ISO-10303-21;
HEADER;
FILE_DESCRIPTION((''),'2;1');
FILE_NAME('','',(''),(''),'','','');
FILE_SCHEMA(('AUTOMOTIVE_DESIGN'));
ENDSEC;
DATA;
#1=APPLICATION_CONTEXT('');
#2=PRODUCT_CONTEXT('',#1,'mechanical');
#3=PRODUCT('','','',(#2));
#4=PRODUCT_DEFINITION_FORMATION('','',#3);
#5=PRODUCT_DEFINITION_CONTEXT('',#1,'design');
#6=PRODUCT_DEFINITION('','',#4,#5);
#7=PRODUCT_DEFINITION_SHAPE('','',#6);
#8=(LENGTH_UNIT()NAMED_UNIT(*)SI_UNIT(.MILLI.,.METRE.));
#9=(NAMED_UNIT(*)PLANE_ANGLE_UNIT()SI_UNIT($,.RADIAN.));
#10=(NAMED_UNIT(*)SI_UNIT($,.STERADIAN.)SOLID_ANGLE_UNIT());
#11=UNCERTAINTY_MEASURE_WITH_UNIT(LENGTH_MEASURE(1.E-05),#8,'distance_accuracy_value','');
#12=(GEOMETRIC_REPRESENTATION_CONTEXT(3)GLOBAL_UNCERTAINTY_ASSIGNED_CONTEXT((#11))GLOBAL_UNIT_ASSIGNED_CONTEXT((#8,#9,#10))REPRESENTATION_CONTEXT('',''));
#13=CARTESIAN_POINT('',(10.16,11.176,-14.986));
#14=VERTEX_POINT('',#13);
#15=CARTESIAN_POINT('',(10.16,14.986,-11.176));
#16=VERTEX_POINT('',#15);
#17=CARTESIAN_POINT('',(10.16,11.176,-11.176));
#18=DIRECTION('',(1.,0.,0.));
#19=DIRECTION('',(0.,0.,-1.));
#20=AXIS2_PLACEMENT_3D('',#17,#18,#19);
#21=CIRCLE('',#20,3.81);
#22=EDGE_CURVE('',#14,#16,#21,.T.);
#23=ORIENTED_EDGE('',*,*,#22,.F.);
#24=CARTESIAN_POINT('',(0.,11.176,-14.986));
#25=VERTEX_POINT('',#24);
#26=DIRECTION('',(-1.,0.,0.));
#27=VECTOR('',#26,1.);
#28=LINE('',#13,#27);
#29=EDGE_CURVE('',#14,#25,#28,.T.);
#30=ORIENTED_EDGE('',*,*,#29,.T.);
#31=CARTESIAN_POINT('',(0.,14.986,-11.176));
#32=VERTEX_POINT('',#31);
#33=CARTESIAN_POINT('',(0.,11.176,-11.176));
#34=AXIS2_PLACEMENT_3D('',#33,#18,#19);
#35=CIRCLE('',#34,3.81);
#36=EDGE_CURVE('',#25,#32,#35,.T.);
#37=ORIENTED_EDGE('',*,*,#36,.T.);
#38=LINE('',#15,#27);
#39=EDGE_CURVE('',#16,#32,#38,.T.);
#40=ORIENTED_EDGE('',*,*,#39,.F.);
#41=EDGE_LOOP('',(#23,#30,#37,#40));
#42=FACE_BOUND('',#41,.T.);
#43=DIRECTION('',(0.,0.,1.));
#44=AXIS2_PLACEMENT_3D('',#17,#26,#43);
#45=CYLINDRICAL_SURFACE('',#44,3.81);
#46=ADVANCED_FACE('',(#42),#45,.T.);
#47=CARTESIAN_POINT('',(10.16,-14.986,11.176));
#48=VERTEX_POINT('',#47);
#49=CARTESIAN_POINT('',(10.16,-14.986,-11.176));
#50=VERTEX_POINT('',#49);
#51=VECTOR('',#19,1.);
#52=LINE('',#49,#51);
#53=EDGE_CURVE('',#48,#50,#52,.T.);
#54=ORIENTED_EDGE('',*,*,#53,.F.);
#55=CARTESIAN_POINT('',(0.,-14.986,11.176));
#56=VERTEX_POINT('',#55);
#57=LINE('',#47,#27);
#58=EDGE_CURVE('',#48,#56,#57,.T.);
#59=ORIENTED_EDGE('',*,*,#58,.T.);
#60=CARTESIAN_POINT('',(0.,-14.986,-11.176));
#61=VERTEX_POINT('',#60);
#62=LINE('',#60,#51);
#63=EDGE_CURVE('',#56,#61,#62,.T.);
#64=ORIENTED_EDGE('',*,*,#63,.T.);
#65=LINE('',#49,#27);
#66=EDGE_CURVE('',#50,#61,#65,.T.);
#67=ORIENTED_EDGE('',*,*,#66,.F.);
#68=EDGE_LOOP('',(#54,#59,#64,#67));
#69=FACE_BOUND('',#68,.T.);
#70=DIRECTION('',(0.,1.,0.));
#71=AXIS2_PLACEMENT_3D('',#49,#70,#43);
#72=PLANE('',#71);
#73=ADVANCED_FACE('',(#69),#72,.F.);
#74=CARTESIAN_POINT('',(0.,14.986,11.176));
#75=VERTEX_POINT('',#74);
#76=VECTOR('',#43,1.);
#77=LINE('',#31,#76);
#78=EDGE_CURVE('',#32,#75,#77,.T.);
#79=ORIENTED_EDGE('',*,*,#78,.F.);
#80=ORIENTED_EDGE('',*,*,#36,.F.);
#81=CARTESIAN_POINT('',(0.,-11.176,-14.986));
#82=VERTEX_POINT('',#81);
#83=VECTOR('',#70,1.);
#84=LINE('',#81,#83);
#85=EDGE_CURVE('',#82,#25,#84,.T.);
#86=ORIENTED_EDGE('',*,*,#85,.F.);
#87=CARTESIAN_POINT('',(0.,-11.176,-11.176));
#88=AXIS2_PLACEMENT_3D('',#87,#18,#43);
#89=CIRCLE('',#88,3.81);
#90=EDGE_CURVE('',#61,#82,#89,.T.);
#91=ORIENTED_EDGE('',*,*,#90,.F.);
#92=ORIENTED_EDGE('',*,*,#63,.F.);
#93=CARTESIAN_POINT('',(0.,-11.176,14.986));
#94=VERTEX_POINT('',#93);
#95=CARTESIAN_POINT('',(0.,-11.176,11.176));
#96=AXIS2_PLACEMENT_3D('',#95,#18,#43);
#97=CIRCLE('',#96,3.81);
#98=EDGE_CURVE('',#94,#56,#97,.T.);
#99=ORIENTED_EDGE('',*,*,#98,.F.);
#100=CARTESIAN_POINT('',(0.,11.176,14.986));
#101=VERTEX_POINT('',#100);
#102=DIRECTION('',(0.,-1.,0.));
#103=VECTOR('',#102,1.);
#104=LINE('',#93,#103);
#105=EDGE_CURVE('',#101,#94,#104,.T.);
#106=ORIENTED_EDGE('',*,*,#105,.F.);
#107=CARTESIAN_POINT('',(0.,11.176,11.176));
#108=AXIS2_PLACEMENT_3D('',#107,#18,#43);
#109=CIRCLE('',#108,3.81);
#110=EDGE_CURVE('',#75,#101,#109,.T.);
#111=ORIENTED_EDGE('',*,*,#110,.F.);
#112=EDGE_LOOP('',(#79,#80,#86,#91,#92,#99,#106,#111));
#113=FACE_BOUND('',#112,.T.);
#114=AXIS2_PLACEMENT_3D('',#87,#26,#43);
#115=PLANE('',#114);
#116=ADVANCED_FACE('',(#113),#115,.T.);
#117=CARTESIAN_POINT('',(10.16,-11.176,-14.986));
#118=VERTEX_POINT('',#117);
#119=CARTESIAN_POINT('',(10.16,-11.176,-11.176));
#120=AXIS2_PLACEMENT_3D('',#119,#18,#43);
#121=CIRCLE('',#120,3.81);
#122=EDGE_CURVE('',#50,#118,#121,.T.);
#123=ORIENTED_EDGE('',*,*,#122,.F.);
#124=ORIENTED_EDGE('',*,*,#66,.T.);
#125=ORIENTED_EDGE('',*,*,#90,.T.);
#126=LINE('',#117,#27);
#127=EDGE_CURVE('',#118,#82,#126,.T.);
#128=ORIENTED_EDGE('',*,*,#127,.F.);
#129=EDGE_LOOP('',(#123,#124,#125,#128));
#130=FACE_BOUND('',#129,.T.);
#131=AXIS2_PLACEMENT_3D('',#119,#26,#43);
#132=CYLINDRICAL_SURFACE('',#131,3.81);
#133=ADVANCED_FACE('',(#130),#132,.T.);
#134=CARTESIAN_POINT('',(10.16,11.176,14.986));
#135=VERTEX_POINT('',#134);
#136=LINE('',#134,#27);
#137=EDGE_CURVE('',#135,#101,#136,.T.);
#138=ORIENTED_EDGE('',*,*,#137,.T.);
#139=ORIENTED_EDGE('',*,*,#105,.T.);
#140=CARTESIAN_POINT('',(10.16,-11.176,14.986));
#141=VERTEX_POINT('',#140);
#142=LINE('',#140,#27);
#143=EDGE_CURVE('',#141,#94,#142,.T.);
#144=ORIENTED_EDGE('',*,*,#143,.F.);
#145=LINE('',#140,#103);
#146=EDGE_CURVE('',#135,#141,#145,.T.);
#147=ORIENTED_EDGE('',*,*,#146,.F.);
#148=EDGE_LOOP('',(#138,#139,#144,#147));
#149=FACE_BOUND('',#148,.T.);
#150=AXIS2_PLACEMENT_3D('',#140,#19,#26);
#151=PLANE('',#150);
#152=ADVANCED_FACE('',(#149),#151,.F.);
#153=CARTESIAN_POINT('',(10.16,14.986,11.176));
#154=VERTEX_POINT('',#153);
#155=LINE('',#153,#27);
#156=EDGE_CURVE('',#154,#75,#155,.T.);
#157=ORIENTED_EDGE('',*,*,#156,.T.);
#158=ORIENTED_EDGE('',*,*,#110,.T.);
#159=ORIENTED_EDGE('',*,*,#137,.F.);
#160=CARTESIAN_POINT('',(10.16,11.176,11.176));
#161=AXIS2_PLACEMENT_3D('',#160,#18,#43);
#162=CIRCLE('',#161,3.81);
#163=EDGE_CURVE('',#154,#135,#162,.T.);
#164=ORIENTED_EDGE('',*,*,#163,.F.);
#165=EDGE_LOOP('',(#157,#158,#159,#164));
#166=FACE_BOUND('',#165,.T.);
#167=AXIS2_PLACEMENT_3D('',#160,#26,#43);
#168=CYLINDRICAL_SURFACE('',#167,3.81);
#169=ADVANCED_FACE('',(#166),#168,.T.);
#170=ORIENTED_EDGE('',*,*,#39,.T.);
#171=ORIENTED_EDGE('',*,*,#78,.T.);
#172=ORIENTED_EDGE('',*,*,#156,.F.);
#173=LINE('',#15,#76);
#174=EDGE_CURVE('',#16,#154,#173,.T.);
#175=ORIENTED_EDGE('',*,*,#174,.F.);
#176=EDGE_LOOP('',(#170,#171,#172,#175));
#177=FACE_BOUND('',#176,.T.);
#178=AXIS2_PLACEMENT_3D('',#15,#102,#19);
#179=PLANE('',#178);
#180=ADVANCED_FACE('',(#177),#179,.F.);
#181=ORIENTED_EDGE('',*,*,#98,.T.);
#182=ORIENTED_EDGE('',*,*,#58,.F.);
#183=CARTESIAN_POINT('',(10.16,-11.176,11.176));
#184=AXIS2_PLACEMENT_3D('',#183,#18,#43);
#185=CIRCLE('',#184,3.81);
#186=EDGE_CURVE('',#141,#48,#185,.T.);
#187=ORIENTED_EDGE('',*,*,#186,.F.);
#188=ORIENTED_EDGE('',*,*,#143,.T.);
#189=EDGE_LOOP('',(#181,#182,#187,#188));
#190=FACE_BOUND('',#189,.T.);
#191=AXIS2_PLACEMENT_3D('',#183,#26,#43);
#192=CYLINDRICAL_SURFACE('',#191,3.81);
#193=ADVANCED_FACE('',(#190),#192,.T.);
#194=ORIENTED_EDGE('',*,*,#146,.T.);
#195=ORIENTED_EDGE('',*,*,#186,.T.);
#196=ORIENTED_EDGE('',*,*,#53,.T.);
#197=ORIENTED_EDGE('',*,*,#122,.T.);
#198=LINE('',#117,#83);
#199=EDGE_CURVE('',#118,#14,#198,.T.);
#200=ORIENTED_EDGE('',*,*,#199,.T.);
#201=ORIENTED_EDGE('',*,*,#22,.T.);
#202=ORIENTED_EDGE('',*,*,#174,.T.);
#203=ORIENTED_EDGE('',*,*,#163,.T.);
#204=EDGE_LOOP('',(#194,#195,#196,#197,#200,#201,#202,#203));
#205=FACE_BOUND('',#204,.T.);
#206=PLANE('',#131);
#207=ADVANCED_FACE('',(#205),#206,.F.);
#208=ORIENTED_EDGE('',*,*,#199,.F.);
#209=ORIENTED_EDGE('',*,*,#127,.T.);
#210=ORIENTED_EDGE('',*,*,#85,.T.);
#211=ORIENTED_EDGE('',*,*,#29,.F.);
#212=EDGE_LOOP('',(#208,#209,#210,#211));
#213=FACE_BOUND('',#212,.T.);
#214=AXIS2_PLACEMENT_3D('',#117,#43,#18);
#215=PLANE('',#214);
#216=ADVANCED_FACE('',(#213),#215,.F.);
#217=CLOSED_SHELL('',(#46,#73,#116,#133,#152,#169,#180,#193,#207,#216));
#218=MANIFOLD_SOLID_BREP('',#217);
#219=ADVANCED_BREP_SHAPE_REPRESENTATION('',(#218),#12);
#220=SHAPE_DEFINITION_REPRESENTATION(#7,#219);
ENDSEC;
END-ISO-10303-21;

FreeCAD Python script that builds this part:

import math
import FreeCAD as App
import Part
import Sketcher

V = App.Vector
Q = App.Units.Quantity

doc = App.newDocument("Part")
params = doc.addObject("Spreadsheet::Sheet", "Params")
for row, (alias, value) in enumerate([
    ("sketch1_radius", "0.15 in"),
    ("sketch1_width", "0.88 in"),
    ("pad1_length", "0.4 in"),
], start=1):
    params.set(f"A{row}", alias)
    params.set(f"B{row}", "=" + value)
    params.setAlias(f"B{row}", alias)

body = doc.addObject("PartDesign::Body", "Body")

# Sketch on YZ plane
sketch1 = body.newObject("Sketcher::SketchObject", "Sketch")
sketch1.AttachmentSupport = (doc.getObject("YZ_Plane"), [""])
sketch1.MapMode = "FlatFace"
sketch1.addGeometry(Part.LineSegment(V(-11.2, -15, 0), V(11.2, -15, 0)), False)
sketch1.addGeometry(Part.ArcOfCircle(Part.Circle(V(11.2, -11.2, 0), V(0, 0, 1), 3.8), math.radians(-90), math.radians(0)), False)
sketch1.addGeometry(Part.LineSegment(V(15, -11.2, 0), V(15, 11.2, 0)), False)
sketch1.addGeometry(Part.ArcOfCircle(Part.Circle(V(11.2, 11.2, 0), V(0, 0, 1), 3.8), math.radians(0), math.radians(90)), False)
sketch1.addGeometry(Part.LineSegment(V(11.2, 15, 0), V(-11.2, 15, 0)), False)
sketch1.addGeometry(Part.ArcOfCircle(Part.Circle(V(-11.2, 11.2, 0), V(0, 0, 1), 3.8), math.radians(90), math.radians(180)), False)
sketch1.addGeometry(Part.LineSegment(V(-15, 11.2, 0), V(-15, -11.2, 0)), False)
sketch1.addGeometry(Part.ArcOfCircle(Part.Circle(V(-11.2, -11.2, 0), V(0, 0, 1), 3.8), math.radians(-180), math.radians(-90)), False)
sketch1.addConstraint(Sketcher.Constraint("Tangent", 0, 2, 1, 1))
sketch1.addConstraint(Sketcher.Constraint("Tangent", 1, 2, 2, 1))
sketch1.addConstraint(Sketcher.Constraint("Tangent", 2, 2, 3, 1))
sketch1.addConstraint(Sketcher.Constraint("Tangent", 3, 2, 4, 1))
sketch1.addConstraint(Sketcher.Constraint("Tangent", 4, 2, 5, 1))
sketch1.addConstraint(Sketcher.Constraint("Tangent", 5, 2, 6, 1))
sketch1.addConstraint(Sketcher.Constraint("Tangent", 6, 2, 7, 1))
sketch1.addConstraint(Sketcher.Constraint("Tangent", 7, 2, 0, 1))
sketch1.addConstraint(Sketcher.Constraint("Horizontal", 0))
sketch1.addConstraint(Sketcher.Constraint("Vertical", 2))
sketch1.addConstraint(Sketcher.Constraint("Horizontal", 4))
sketch1.addConstraint(Sketcher.Constraint("Vertical", 6))
sketch1.addConstraint(Sketcher.Constraint("Equal", 1, 3))
sketch1.addConstraint(Sketcher.Constraint("Equal", 3, 5))
sketch1.addConstraint(Sketcher.Constraint("Equal", 5, 7))
sketch1.addConstraint(Sketcher.Constraint("Symmetric", 1, 3, 5, 3, -1, 1))
sketch1.addConstraint(Sketcher.Constraint("Equal", 4, 2))
sketch1.addConstraint(Sketcher.Constraint("Radius", 1, Q("0.15 in")))
sketch1.addConstraint(Sketcher.Constraint("DistanceX", 0, 1, 0, 2, Q("0.88 in")))
sketch1.setExpression("Constraints[17]", "Params.sketch1_radius")
sketch1.setExpression("Constraints[18]", "Params.sketch1_width")
pad1 = body.newObject("PartDesign::Pad", "Pad")
pad1.Profile = sketch1
pad1.setExpression("Length", "Params.pad1_length")

doc.recompute()
